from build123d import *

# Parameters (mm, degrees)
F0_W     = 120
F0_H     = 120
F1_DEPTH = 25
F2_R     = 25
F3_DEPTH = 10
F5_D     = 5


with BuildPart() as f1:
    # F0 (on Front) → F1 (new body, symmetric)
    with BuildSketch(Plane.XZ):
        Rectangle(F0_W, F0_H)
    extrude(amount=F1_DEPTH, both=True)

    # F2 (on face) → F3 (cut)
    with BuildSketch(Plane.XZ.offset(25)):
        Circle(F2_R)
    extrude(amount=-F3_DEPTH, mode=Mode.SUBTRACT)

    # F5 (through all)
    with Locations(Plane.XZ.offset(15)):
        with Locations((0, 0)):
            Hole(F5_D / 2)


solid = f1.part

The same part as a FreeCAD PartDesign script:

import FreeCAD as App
import Part
import Sketcher

V = App.Vector
Q = App.Units.Quantity


def add_polygon(sketch, points):
    """Adds a closed chain of lines whose ends are joined by coincident constraints."""
    first, n = sketch.GeometryCount, len(points)
    for a, b in zip(points, points[1:] + points[:1]):
        sketch.addGeometry(Part.LineSegment(App.Vector(*a, 0), App.Vector(*b, 0)), False)
    for i in range(n):
        sketch.addConstraint(Sketcher.Constraint("Coincident", first + i, 2, first + (i + 1) % n, 1))

doc = App.newDocument("Part")
body = doc.addObject("PartDesign::Body", "Body")

# Sketch on XZ plane
sketch1 = body.newObject("Sketcher::SketchObject", "Sketch")
sketch1.AttachmentSupport = (doc.getObject("XZ_Plane"), [""])
sketch1.MapMode = "FlatFace"
add_polygon(sketch1, [(-60, 60), (-60, -60), (60, -60), (60, 60)])  # lines 0-3
sketch1.addConstraint(Sketcher.Constraint("Vertical", 0))
sketch1.addConstraint(Sketcher.Constraint("Horizontal", 1))
sketch1.addConstraint(Sketcher.Constraint("Vertical", 2))
sketch1.addConstraint(Sketcher.Constraint("Horizontal", 3))
sketch1.addConstraint(Sketcher.Constraint("Symmetric", 0, 2, 2, 2, -1, 1))
sketch1.addConstraint(Sketcher.Constraint("Equal", 3, 0))
sketch1.addConstraint(Sketcher.Constraint("DistanceX", 1, 1, 1, 2, Q("120 mm")))
pad1 = body.newObject("PartDesign::Pad", "Pad")
pad1.Profile = sketch1
pad1.Length = 50
pad1.Midplane = True

# Sketch on XZ plane
sketch2 = body.newObject("Sketcher::SketchObject", "Sketch001")
sketch2.AttachmentSupport = (doc.getObject("XZ_Plane"), [""])
sketch2.MapMode = "FlatFace"
sketch2.AttachmentOffset = App.Placement(V(0, 0, 25), App.Rotation())
sketch2.addGeometry(Part.Circle(V(0, 0, 0), V(0, 0, 1), 25), False)
sketch2.addConstraint(Sketcher.Constraint("Coincident", 0, 3, -1, 1))
sketch2.addConstraint(Sketcher.Constraint("Diameter", 0, Q("50 mm")))
pocket1 = body.newObject("PartDesign::Pocket", "Pocket")
pocket1.Profile = sketch2
pocket1.Length = 10

# Sketch on XZ plane
sketch3 = body.newObject("Sketcher::SketchObject", "Sketch002")
sketch3.AttachmentSupport = (doc.getObject("XZ_Plane"), [""])
sketch3.MapMode = "FlatFace"
sketch3.AttachmentOffset = App.Placement(V(0, 0, 15), App.Rotation())
sketch3.addGeometry(Part.Circle(V(0, 0, 0), V(0, 0, 1), 2.5), False)
sketch3.addConstraint(Sketcher.Constraint("Coincident", 0, 3, -1, 1))
sketch3.addConstraint(Sketcher.Constraint("Diameter", 0, Q("5 mm")))
doc.recompute()
hole = body.newObject("PartDesign::Hole", "Hole")
hole.Profile = sketch3
hole.ThreadType = "None"
hole.Diameter = 5
hole.DepthType = "ThroughAll"

doc.recompute()
